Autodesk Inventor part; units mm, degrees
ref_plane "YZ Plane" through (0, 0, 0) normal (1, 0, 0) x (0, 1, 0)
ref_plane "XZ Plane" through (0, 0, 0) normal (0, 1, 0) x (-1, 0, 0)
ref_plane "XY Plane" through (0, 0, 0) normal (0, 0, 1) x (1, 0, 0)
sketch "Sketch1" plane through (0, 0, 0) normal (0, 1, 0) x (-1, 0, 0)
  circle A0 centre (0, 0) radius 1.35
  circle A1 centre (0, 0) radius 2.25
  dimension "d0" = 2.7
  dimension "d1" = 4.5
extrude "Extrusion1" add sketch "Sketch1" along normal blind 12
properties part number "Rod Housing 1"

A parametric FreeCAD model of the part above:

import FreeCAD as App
import Part
import Sketcher
from FreeCAD import Vector

doc = App.newDocument("Part")
body = doc.addObject("PartDesign::Body", "Body")

# Sketch on XZ plane
sketch1 = doc.addObject("Sketcher::SketchObject", "Sketch")
body.addObject(sketch1)
sketch1.AttachmentSupport = (doc.XZ_Plane, [""])
sketch1.MapMode = "FlatFace"
sketch1.addGeometry([
    Part.Circle(Vector(0, 0, 0), Vector(0, 0, 1), 2.25),
    Part.Circle(Vector(0, 0, 0), Vector(0, 0, 1), 1.35),
], False)
sketch1.addConstraint([
    Sketcher.Constraint("Coincident", 0, 3, -1, 1),
    Sketcher.Constraint("Coincident", 1, 3, -1, 1),
    Sketcher.Constraint("Diameter", 0, 4.5),
    Sketcher.Constraint("Diameter", 1, 2.7),
])
pad1 = doc.addObject("PartDesign::Pad", "Pad")
body.addObject(pad1)
pad1.Profile = sketch1
pad1.Length = 12
pad1.Reversed = True

doc.recompute()
